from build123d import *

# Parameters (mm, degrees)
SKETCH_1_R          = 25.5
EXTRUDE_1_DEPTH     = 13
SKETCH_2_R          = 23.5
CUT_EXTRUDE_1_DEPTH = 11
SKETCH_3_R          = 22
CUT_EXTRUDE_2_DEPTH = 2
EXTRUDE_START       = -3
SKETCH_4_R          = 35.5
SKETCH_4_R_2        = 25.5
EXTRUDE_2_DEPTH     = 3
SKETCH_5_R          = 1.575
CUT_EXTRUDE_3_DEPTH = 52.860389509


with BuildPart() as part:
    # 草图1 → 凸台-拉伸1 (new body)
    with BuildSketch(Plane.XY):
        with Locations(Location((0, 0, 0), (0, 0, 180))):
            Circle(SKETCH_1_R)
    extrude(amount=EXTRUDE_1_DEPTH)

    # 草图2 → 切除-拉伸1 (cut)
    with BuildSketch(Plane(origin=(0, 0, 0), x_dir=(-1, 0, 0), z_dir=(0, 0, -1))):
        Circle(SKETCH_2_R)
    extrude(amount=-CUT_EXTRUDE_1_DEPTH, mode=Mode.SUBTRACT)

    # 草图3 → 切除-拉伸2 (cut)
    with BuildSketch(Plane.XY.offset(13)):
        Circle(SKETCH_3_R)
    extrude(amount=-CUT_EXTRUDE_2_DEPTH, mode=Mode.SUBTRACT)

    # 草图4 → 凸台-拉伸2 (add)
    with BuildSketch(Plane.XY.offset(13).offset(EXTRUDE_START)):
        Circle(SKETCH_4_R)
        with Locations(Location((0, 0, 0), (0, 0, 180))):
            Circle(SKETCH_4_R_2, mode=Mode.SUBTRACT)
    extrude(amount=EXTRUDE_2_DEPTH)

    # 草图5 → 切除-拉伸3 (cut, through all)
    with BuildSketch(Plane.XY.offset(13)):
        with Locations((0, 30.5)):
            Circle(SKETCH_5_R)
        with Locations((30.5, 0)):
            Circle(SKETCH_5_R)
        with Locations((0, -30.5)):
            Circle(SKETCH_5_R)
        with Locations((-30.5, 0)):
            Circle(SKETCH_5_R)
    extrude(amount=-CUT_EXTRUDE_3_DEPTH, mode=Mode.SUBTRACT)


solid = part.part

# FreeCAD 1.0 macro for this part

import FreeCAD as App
import Part
import Sketcher

V = App.Vector
Q = App.Units.Quantity

doc = App.newDocument("Part")
body = doc.addObject("PartDesign::Body", "Body")

sketch1 = body.newObject("Sketcher::SketchObject", "Sketch")
sketch1.AttachmentSupport = (doc.getObject("XY_Plane"), [""])
sketch1.MapMode = "FlatFace"
sketch1.addGeometry(Part.Circle(V(0, 0, 0), V(0, 0, 1), 26), False)
sketch1.addConstraint([
    Sketcher.Constraint("Coincident", 0, 3, -1, 1),
    Sketcher.Constraint("Diameter", 0, Q("51 mm")),
])
pad1 = body.newObject("PartDesign::Pad", "Pad")
pad1.Profile = sketch1
pad1.Length = 13

sketch2 = body.newObject("Sketcher::SketchObject", "Sketch001")
sketch2.AttachmentSupport = (doc.getObject("XY_Plane"), [""])
sketch2.MapMode = "FlatFace"
sketch2.addGeometry(Part.Circle(V(0, 0, 0), V(0, 0, 1), 24), False)
sketch2.addConstraint([
    Sketcher.Constraint("Coincident", 0, 3, -1, 1),
    Sketcher.Constraint("Diameter", 0, Q("47 mm")),
])
pocket1 = body.newObject("PartDesign::Pocket", "Pocket")
pocket1.Profile = sketch2
pocket1.Length = 11
pocket1.Reversed = True

sketch3 = body.newObject("Sketcher::SketchObject", "Sketch002")
sketch3.AttachmentSupport = (doc.getObject("XY_Plane"), [""])
sketch3.MapMode = "FlatFace"
sketch3.AttachmentOffset = App.Placement(V(0, 0, 13), App.Rotation())
sketch3.addGeometry(Part.Circle(V(0, 0, 0), V(0, 0, 1), 22), False)
sketch3.addConstraint([
    Sketcher.Constraint("Coincident", 0, 3, -1, 1),
    Sketcher.Constraint("Diameter", 0, Q("44 mm")),
])
pocket2 = body.newObject("PartDesign::Pocket", "Pocket001")
pocket2.Profile = sketch3
pocket2.Length = 2

sketch4 = body.newObject("Sketcher::SketchObject", "Sketch003")
sketch4.AttachmentSupport = (doc.getObject("XY_Plane"), [""])
sketch4.MapMode = "FlatFace"
sketch4.AttachmentOffset = App.Placement(V(0, 0, 10), App.Rotation())
sketch4.addGeometry([
    Part.Circle(V(0, 0, 0), V(0, 0, 1), 36),
    Part.Circle(V(0, 0, 0), V(0, 0, 1), 26),
], False)
sketch4.addConstraint([
    Sketcher.Constraint("Coincident", 0, 3, -1, 1),
    Sketcher.Constraint("Coincident", 1, 3, -1, 1),
    Sketcher.Constraint("Diameter", 0, Q("71 mm")),
    Sketcher.Constraint("Diameter", 1, Q("51 mm")),
])
pad2 = body.newObject("PartDesign::Pad", "Pad001")
pad2.Profile = sketch4
pad2.Length = 3

sketch5 = body.newObject("Sketcher::SketchObject", "Sketch004")
sketch5.AttachmentSupport = (doc.getObject("XY_Plane"), [""])
sketch5.MapMode = "FlatFace"
sketch5.AttachmentOffset = App.Placement(V(0, 0, 13), App.Rotation())
sketch5.addGeometry([
    Part.Circle(V(0, 30.5, 0), V(0, 0, 1), 1.6),
    Part.Circle(V(30.5, 0, 0), V(0, 0, 1), 1.6),
    Part.Circle(V(0, -30.5, 0), V(0, 0, 1), 1.6),
    Part.Circle(V(-30.5, 0, 0), V(0, 0, 1), 1.6),
], False)
sketch5.addConstraint([
    Sketcher.Constraint("Equal", 0, 1),
    Sketcher.Constraint("Equal", 1, 2),
    Sketcher.Constraint("Equal", 2, 3),
    Sketcher.Constraint("Symmetric", 0, 3, 2, 3, -1, 1),
    Sketcher.Constraint("Symmetric", 1, 3, 3, 3, -1, 1),
    Sketcher.Constraint("PointOnObject", 0, 3, -2),
    Sketcher.Constraint("PointOnObject", 1, 3, -1),
    Sketcher.Constraint("Diameter", 0, Q("3.15 mm")),
    Sketcher.Constraint("DistanceY", 2, 3, 0, 3, Q("61 mm")),
    Sketcher.Constraint("DistanceX", 3, 3, 1, 3, Q("61 mm")),
])
pocket3 = body.newObject("PartDesign::Pocket", "Pocket002")
pocket3.Profile = sketch5
pocket3.Type = "ThroughAll"

doc.recompute()
